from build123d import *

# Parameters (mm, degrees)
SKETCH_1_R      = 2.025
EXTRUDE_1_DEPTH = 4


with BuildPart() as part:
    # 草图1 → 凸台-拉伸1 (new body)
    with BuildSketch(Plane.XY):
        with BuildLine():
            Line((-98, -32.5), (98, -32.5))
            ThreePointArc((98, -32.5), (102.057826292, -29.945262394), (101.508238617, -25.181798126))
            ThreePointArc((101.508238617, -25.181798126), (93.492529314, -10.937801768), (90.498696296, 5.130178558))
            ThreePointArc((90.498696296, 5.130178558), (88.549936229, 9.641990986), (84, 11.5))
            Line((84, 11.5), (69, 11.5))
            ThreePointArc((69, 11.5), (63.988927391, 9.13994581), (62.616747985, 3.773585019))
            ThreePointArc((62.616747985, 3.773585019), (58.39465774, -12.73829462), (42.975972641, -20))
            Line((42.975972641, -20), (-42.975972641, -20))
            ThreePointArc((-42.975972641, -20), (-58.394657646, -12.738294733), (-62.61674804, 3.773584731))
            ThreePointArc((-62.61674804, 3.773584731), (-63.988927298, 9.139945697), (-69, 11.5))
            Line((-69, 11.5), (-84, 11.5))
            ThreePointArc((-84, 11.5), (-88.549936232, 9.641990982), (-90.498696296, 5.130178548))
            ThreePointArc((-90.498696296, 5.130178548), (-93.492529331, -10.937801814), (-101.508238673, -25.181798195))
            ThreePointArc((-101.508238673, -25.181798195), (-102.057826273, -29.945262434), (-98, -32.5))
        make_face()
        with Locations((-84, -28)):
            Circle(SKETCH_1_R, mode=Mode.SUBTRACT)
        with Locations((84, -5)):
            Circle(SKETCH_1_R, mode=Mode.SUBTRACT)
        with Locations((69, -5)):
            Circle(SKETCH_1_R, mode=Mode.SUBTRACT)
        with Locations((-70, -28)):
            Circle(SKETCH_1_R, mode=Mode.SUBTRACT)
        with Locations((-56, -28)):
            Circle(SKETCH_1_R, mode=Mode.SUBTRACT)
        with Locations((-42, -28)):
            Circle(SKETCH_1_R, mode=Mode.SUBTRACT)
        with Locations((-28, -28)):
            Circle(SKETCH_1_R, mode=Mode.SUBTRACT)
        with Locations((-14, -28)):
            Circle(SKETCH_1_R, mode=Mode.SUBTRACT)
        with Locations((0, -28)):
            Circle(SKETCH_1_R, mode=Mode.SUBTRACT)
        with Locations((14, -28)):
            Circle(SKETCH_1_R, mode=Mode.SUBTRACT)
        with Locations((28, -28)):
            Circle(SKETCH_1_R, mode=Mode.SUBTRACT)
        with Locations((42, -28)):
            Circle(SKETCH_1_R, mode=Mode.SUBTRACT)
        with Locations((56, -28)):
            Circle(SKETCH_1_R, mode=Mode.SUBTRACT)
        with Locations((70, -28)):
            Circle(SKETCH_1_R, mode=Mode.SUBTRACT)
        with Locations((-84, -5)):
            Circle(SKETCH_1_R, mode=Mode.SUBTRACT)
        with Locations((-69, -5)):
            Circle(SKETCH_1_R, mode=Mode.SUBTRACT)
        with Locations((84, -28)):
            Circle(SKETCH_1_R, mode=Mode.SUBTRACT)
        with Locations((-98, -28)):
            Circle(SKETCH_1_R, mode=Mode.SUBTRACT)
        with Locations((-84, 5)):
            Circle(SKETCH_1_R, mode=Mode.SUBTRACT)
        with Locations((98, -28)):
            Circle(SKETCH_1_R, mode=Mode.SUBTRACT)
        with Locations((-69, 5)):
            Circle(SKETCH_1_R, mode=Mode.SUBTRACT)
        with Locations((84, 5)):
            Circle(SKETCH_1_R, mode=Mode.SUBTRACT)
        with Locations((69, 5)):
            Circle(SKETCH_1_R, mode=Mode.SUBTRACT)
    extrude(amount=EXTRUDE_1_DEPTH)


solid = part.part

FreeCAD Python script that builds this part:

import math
import FreeCAD as App
import Part
import Sketcher
Q = App.Units.Quantity

doc = App.newDocument("Part")
body = doc.addObject("PartDesign::Body", "Body")

# Sketch on XY plane
sketch1 = body.newObject("Sketcher::SketchObject", "Sketch")
sketch1.AttachmentSupport = (doc.getObject("XY_Plane"), [""])
sketch1.MapMode = "FlatFace"
sketch1.addGeometry(Part.LineSegment(App.Vector(-98, -32.5, 0), App.Vector(98, -32.5, 0)), False)
sketch1.addGeometry(Part.ArcOfCircle(Part.Circle(App.Vector(98, -28, 0), App.Vector(0, 0, 1), 4.5), math.radians(-90), math.radians(39)), False)
sketch1.addGeometry(Part.ArcOfCircle(Part.Circle(App.Vector(140.5, 6.1, 0), App.Vector(0, 0, 1), 50), math.radians(-179), math.radians(-141)), False)
sketch1.addGeometry(Part.ArcOfCircle(Part.Circle(App.Vector(84, 5, 0), App.Vector(0, 0, 1), 6.5), math.radians(1), math.radians(90)), False)
sketch1.addGeometry(Part.LineSegment(App.Vector(84, 11.5, 0), App.Vector(69, 11.5, 0)), False)
sketch1.addGeometry(Part.ArcOfCircle(Part.Circle(App.Vector(69, 5, 0), App.Vector(0, 0, 1), 6.5), math.radians(90), math.radians(191)), False)
sketch1.addGeometry(Part.ArcOfCircle(Part.Circle(App.Vector(43, 0, 0), App.Vector(0, 0, 1), 20), math.radians(-90), math.radians(11)), False)
sketch1.addGeometry(Part.LineSegment(App.Vector(43, -20, 0), App.Vector(-43, -20, 0)), False)
sketch1.addGeometry(Part.ArcOfCircle(Part.Circle(App.Vector(-43, 0, 0), App.Vector(0, 0, 1), 20), math.radians(169), math.radians(270)), False)
sketch1.addGeometry(Part.ArcOfCircle(Part.Circle(App.Vector(-69, 5, 0), App.Vector(0, 0, 1), 6.5), math.radians(-11), math.radians(90)), False)
sketch1.addGeometry(Part.LineSegment(App.Vector(-69, 11.5, 0), App.Vector(-84, 11.5, 0)), False)
sketch1.addGeometry(Part.ArcOfCircle(Part.Circle(App.Vector(-84, 5, 0), App.Vector(0, 0, 1), 6.5), math.radians(90), math.radians(179)), False)
sketch1.addGeometry(Part.ArcOfCircle(Part.Circle(App.Vector(-140.5, 6.1, 0), App.Vector(0, 0, 1), 50), math.radians(-39), math.radians(-1)), False)
sketch1.addGeometry(Part.ArcOfCircle(Part.Circle(App.Vector(-98, -28, 0), App.Vector(0, 0, 1), 4.5), math.radians(141), math.radians(270)), False)
sketch1.addGeometry(Part.Circle(App.Vector(-98, -28, 0), App.Vector(0, 0, 1), 2), False)
sketch1.addGeometry(Part.Circle(App.Vector(-84, -28, 0), App.Vector(0, 0, 1), 2), False)
sketch1.addGeometry(Part.Circle(App.Vector(-70, -28, 0), App.Vector(0, 0, 1), 2), False)
sketch1.addGeometry(Part.Circle(App.Vector(-56, -28, 0), App.Vector(0, 0, 1), 2), False)
sketch1.addGeometry(Part.Circle(App.Vector(-42, -28, 0), App.Vector(0, 0, 1), 2), False)
sketch1.addGeometry(Part.Circle(App.Vector(-28, -28, 0), App.Vector(0, 0, 1), 2), False)
sketch1.addGeometry(Part.Circle(App.Vector(-14, -28, 0), App.Vector(0, 0, 1), 2), False)
sketch1.addGeometry(Part.Circle(App.Vector(0, -28, 0), App.Vector(0, 0, 1), 2), False)
sketch1.addGeometry(Part.Circle(App.Vector(14, -28, 0), App.Vector(0, 0, 1), 2), False)
sketch1.addGeometry(Part.Circle(App.Vector(28, -28, 0), App.Vector(0, 0, 1), 2), False)
sketch1.addGeometry(Part.Circle(App.Vector(42, -28, 0), App.Vector(0, 0, 1), 2), False)
sketch1.addGeometry(Part.Circle(App.Vector(56, -28, 0), App.Vector(0, 0, 1), 2), False)
sketch1.addGeometry(Part.Circle(App.Vector(70, -28, 0), App.Vector(0, 0, 1), 2), False)
sketch1.addGeometry(Part.Circle(App.Vector(84, -28, 0), App.Vector(0, 0, 1), 2), False)
sketch1.addGeometry(Part.Circle(App.Vector(98, -28, 0), App.Vector(0, 0, 1), 2), False)
sketch1.addGeometry(Part.Circle(App.Vector(-84, -5, 0), App.Vector(0, 0, 1), 2), False)
sketch1.addGeometry(Part.Circle(App.Vector(-69, -5, 0), App.Vector(0, 0, 1), 2), False)
sketch1.addGeometry(Part.Circle(App.Vector(-84, 5, 0), App.Vector(0, 0, 1), 2), False)
sketch1.addGeometry(Part.Circle(App.Vector(-69, 5, 0), App.Vector(0, 0, 1), 2), False)
sketch1.addGeometry(Part.Circle(App.Vector(69, -5, 0), App.Vector(0, 0, 1), 2), False)
sketch1.addGeometry(Part.Circle(App.Vector(84, -5, 0), App.Vector(0, 0, 1), 2), False)
sketch1.addGeometry(Part.Circle(App.Vector(69, 5, 0), App.Vector(0, 0, 1), 2), False)
sketch1.addGeometry(Part.Circle(App.Vector(84, 5, 0), App.Vector(0, 0, 1), 2), False)
sketch1.addConstraint(Sketcher.Constraint("Tangent", 0, 2, 1, 1))
sketch1.addConstraint(Sketcher.Constraint("Tangent", 1, 2, 2, 2))
sketch1.addConstraint(Sketcher.Constraint("Tangent", 2, 1, 3, 1))
sketch1.addConstraint(Sketcher.Constraint("Tangent", 3, 2, 4, 1))
sketch1.addConstraint(Sketcher.Constraint("Tangent", 4, 2, 5, 1))
sketch1.addConstraint(Sketcher.Constraint("Tangent", 5, 2, 6, 2))
sketch1.addConstraint(Sketcher.Constraint("Tangent", 6, 1, 7, 1))
sketch1.addConstraint(Sketcher.Constraint("Tangent", 7, 2, 8, 2))
sketch1.addConstraint(Sketcher.Constraint("Tangent", 8, 1, 9, 1))
sketch1.addConstraint(Sketcher.Constraint("Tangent", 9, 2, 10, 1))
sketch1.addConstraint(Sketcher.Constraint("Tangent", 10, 2, 11, 1))
sketch1.addConstraint(Sketcher.Constraint("Tangent", 11, 2, 12, 2))
sketch1.addConstraint(Sketcher.Constraint("Tangent", 12, 1, 13, 1))
sketch1.addConstraint(Sketcher.Constraint("Tangent", 13, 2, 0, 1))
sketch1.addConstraint(Sketcher.Constraint("Horizontal", 0))
sketch1.addConstraint(Sketcher.Constraint("Horizontal", 4))
sketch1.addConstraint(Sketcher.Constraint("Horizontal", 7))
sketch1.addConstraint(Sketcher.Constraint("Horizontal", 10))
sketch1.addConstraint(Sketcher.Constraint("Coincident", 14, 3, 13, 3))
sketch1.addConstraint(Sketcher.Constraint("Coincident", 28, 3, 1, 3))
sketch1.addConstraint(Sketcher.Constraint("Coincident", 31, 3, 11, 3))
sketch1.addConstraint(Sketcher.Constraint("Coincident", 32, 3, 9, 3))
sketch1.addConstraint(Sketcher.Constraint("Coincident", 35, 3, 5, 3))
sketch1.addConstraint(Sketcher.Constraint("Coincident", 36, 3, 3, 3))
sketch1.addConstraint(Sketcher.Constraint("Equal", 3, 5))
sketch1.addConstraint(Sketcher.Constraint("Equal", 6, 8))
sketch1.addConstraint(Sketcher.Constraint("Equal", 5, 9))
sketch1.addConstraint(Sketcher.Constraint("Equal", 9, 11))
sketch1.addConstraint(Sketcher.Constraint("Equal", 2, 12))
sketch1.addConstraint(Sketcher.Constraint("Equal", 1, 13))
sketch1.addConstraint(Sketcher.Constraint("Equal", 14, 15))
sketch1.addConstraint(Sketcher.Constraint("Equal", 15, 16))
sketch1.addConstraint(Sketcher.Constraint("Equal", 16, 17))
sketch1.addConstraint(Sketcher.Constraint("Equal", 17, 18))
sketch1.addConstraint(Sketcher.Constraint("Equal", 18, 19))
sketch1.addConstraint(Sketcher.Constraint("Equal", 19, 20))
sketch1.addConstraint(Sketcher.Constraint("Equal", 20, 21))
sketch1.addConstraint(Sketcher.Constraint("Equal", 21, 22))
sketch1.addConstraint(Sketcher.Constraint("Equal", 22, 23))
sketch1.addConstraint(Sketcher.Constraint("Equal", 23, 24))
sketch1.addConstraint(Sketcher.Constraint("Equal", 24, 25))
sketch1.addConstraint(Sketcher.Constraint("Equal", 25, 26))
sketch1.addConstraint(Sketcher.Constraint("Equal", 26, 27))
sketch1.addConstraint(Sketcher.Constraint("Equal", 27, 28))
sketch1.addConstraint(Sketcher.Constraint("Equal", 28, 29))
sketch1.addConstraint(Sketcher.Constraint("Equal", 29, 30))
sketch1.addConstraint(Sketcher.Constraint("Equal", 30, 31))
sketch1.addConstraint(Sketcher.Constraint("Equal", 31, 32))
sketch1.addConstraint(Sketcher.Constraint("Equal", 32, 33))
sketch1.addConstraint(Sketcher.Constraint("Equal", 33, 34))
sketch1.addConstraint(Sketcher.Constraint("Equal", 34, 35))
sketch1.addConstraint(Sketcher.Constraint("Equal", 35, 36))
sketch1.addConstraint(Sketcher.Constraint("Symmetric", 6, 3, 8, 3, -1, 1))
sketch1.addConstraint(Sketcher.Constraint("Symmetric", 3, 3, 29, 3, -1, 1))
sketch1.addConstraint(Sketcher.Constraint("Symmetric", 5, 3, 30, 3, -1, 1))
sketch1.addConstraint(Sketcher.Constraint("Symmetric", 9, 3, 33, 3, -1, 1))
sketch1.addConstraint(Sketcher.Constraint("Symmetric", 11, 3, 34, 3, -1, 1))
sketch1.addConstraint(Sketcher.Constraint("Symmetric", 3, 3, 11, 3, -2))
sketch1.addConstraint(Sketcher.Constraint("Symmetric", 20, 3, 22, 3, -2))
sketch1.addConstraint(Sketcher.Constraint("Symmetric", 19, 3, 23, 3, -2))
sketch1.addConstraint(Sketcher.Constraint("Symmetric", 18, 3, 24, 3, -2))
sketch1.addConstraint(Sketcher.Constraint("Symmetric", 17, 3, 25, 3, -2))
sketch1.addConstraint(Sketcher.Constraint("Symmetric", 16, 3, 26, 3, -2))
sketch1.addConstraint(Sketcher.Constraint("Symmetric", 15, 3, 27, 3, -2))
sketch1.addConstraint(Sketcher.Constraint("PointOnObject", 21, 3, -2))
sketch1.addConstraint(Sketcher.Constraint("Horizontal", 2, 3, 12, 3))
sketch1.addConstraint(Sketcher.Constraint("Horizontal", 14, 3, 15, 3))
sketch1.addConstraint(Sketcher.Constraint("Horizontal", 15, 3, 16, 3))
sketch1.addConstraint(Sketcher.Constraint("Horizontal", 16, 3, 17, 3))
sketch1.addConstraint(Sketcher.Constraint("Horizontal", 17, 3, 18, 3))
sketch1.addConstraint(Sketcher.Constraint("Horizontal", 18, 3, 19, 3))
sketch1.addConstraint(Sketcher.Constraint("Horizontal", 19, 3, 20, 3))
sketch1.addConstraint(Sketcher.Constraint("Horizontal", 20, 3, 21, 3))
sketch1.addConstraint(Sketcher.Constraint("Vertical", 11, 3, 15, 3))
sketch1.addConstraint(Sketcher.Constraint("Radius", 2, Q("50 mm")))
sketch1.addConstraint(Sketcher.Constraint("Radius", 6, Q("20 mm")))
sketch1.addConstraint(Sketcher.Constraint("Radius", 1, Q("4.5 mm")))
sketch1.addConstraint(Sketcher.Constraint("Radius", 3, Q("6.5 mm")))
sketch1.addConstraint(Sketcher.Constraint("Diameter", 14, Q("4.05 mm")))
sketch1.addConstraint(Sketcher.Constraint("DistanceX", 0, 1, 0, 2, Q("196 mm")))
sketch1.addConstraint(Sketcher.Constraint("DistanceX", 4, 2, 4, 1, Q("15 mm")))
sketch1.addConstraint(Sketcher.Constraint("DistanceY", 1, 3, -1, 1, Q("28 mm")))
sketch1.addConstraint(Sketcher.Constraint("DistanceX", -1, 1, 3, 3, Q("84 mm")))
sketch1.addConstraint(Sketcher.Constraint("DistanceY", -1, 1, 3, 3, Q("5 mm")))
sketch1.addConstraint(Sketcher.Constraint("DistanceX", 16, 3, -1, 1, Q("70 mm")))
sketch1.addConstraint(Sketcher.Constraint("DistanceX", 17, 3, -1, 1, Q("56 mm")))
sketch1.addConstraint(Sketcher.Constraint("DistanceX", 18, 3, -1, 1, Q("42 mm")))
sketch1.addConstraint(Sketcher.Constraint("DistanceX", 19, 3, -1, 1, Q("28 mm")))
sketch1.addConstraint(Sketcher.Constraint("DistanceX", 20, 3, -1, 1, Q("14 mm")))
pad1 = body.newObject("PartDesign::Pad", "Pad")
pad1.Profile = sketch1
pad1.Length = 4

doc.recompute()
